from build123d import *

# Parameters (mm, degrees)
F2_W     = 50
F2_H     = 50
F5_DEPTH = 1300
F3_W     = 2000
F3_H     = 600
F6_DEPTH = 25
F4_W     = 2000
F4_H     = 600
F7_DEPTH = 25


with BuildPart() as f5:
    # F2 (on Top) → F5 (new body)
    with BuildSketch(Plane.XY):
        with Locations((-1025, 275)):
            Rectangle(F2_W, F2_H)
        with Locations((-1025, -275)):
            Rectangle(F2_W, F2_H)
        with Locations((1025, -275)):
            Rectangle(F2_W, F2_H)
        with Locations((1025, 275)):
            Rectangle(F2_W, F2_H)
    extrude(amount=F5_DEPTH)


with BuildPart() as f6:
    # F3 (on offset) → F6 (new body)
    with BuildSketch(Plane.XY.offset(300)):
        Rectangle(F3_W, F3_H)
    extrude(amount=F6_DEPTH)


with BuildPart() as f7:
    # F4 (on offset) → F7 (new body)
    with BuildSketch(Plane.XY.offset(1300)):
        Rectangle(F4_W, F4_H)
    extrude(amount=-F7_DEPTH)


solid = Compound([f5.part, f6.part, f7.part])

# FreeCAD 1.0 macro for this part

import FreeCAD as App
import Part
import Sketcher

V = App.Vector
Q = App.Units.Quantity


def add_polygon(sketch, points):
    """Adds a closed chain of lines whose ends are joined by coincident constraints."""
    first, n = sketch.GeometryCount, len(points)
    for a, b in zip(points, points[1:] + points[:1]):
        sketch.addGeometry(Part.LineSegment(App.Vector(*a, 0), App.Vector(*b, 0)), False)
    for i in range(n):
        sketch.addConstraint(Sketcher.Constraint("Coincident", first + i, 2, first + (i + 1) % n, 1))

doc = App.newDocument("Part")
body = doc.addObject("PartDesign::Body", "Body")
body.AllowCompound = True

sketch1 = doc.addObject("Sketcher::SketchObject", "Sketch")
body.addObject(sketch1)
sketch1.AttachmentSupport = (doc.XY_Plane, [""])
sketch1.MapMode = "FlatFace"
add_polygon(sketch1, [(-1050, 300), (-1050, 250), (-1000, 250), (-1000, 300)])
add_polygon(sketch1, [(-1050, -250), (-1050, -300), (-1000, -300), (-1000, -250)])
add_polygon(sketch1, [(1000, -250), (1000, -300), (1050, -300), (1050, -250)])
add_polygon(sketch1, [(1000, 300), (1000, 250), (1050, 250), (1050, 300)])
sketch1.addConstraint(Sketcher.Constraint("Vertical", 0))
sketch1.addConstraint(Sketcher.Constraint("Horizontal", 1))
sketch1.addConstraint(Sketcher.Constraint("Vertical", 2))
sketch1.addConstraint(Sketcher.Constraint("Horizontal", 3))
sketch1.addConstraint(Sketcher.Constraint("Vertical", 4))
sketch1.addConstraint(Sketcher.Constraint("Horizontal", 5))
sketch1.addConstraint(Sketcher.Constraint("Vertical", 6))
sketch1.addConstraint(Sketcher.Constraint("Horizontal", 7))
sketch1.addConstraint(Sketcher.Constraint("Vertical", 8))
sketch1.addConstraint(Sketcher.Constraint("Horizontal", 9))
sketch1.addConstraint(Sketcher.Constraint("Vertical", 10))
sketch1.addConstraint(Sketcher.Constraint("Horizontal", 11))
sketch1.addConstraint(Sketcher.Constraint("Vertical", 12))
sketch1.addConstraint(Sketcher.Constraint("Horizontal", 13))
sketch1.addConstraint(Sketcher.Constraint("Vertical", 14))
sketch1.addConstraint(Sketcher.Constraint("Horizontal", 15))
sketch1.addConstraint(Sketcher.Constraint("Symmetric", 2, 2, 8, 2, -1, 1))
sketch1.addConstraint(Sketcher.Constraint("Symmetric", 0, 2, 10, 2, -1, 1))
sketch1.addConstraint(Sketcher.Constraint("Symmetric", 6, 2, 12, 2, -1, 1))
sketch1.addConstraint(Sketcher.Constraint("Symmetric", 4, 2, 14, 2, -1, 1))
sketch1.addConstraint(Sketcher.Constraint("Symmetric", 5, 2, 8, 2, -2))
sketch1.addConstraint(Sketcher.Constraint("Symmetric", 7, 2, 10, 2, -2))
sketch1.addConstraint(Sketcher.Constraint("Equal", 15, 0))
sketch1.addConstraint(Sketcher.Constraint("DistanceX", 1, 1, 1, 2, Q("50 mm")))
sketch1.addConstraint(Sketcher.Constraint("DistanceX", 0, 2, -1, 1, Q("1050 mm")))
sketch1.addConstraint(Sketcher.Constraint("DistanceY", -1, 1, 0, 2, Q("250 mm")))
pad1 = doc.addObject("PartDesign::Pad", "Pad")
body.addObject(pad1)
pad1.Profile = sketch1
pad1.Length = 1300
body2 = doc.addObject("PartDesign::Body", "Body001")

sketch2 = doc.addObject("Sketcher::SketchObject", "Sketch001")
body2.addObject(sketch2)
sketch2.AttachmentSupport = (doc.getObject("XY_Plane001"), [""])
sketch2.MapMode = "FlatFace"
sketch2.AttachmentOffset = App.Placement(V(0, 0, 300), App.Rotation())
add_polygon(sketch2, [(-1000, 300), (-1000, -300), (1000, -300), (1000, 300)])
sketch2.addConstraint(Sketcher.Constraint("Vertical", 0))
sketch2.addConstraint(Sketcher.Constraint("Horizontal", 1))
sketch2.addConstraint(Sketcher.Constraint("Vertical", 2))
sketch2.addConstraint(Sketcher.Constraint("Horizontal", 3))
sketch2.addConstraint(Sketcher.Constraint("Symmetric", 0, 2, 2, 2, -1, 1))
sketch2.addConstraint(Sketcher.Constraint("DistanceX", 1, 1, 1, 2, Q("2000 mm")))
sketch2.addConstraint(Sketcher.Constraint("DistanceY", 0, 2, 0, 1, Q("600 mm")))
pad2 = doc.addObject("PartDesign::Pad", "Pad001")
body2.addObject(pad2)
pad2.Profile = sketch2
pad2.Length = 25
body3 = doc.addObject("PartDesign::Body", "Body002")

sketch3 = doc.addObject("Sketcher::SketchObject", "Sketch002")
body3.addObject(sketch3)
sketch3.AttachmentSupport = (doc.getObject("XY_Plane002"), [""])
sketch3.MapMode = "FlatFace"
sketch3.AttachmentOffset = App.Placement(V(0, 0, 1300), App.Rotation())
add_polygon(sketch3, [(-1000, 300), (-1000, -300), (1000, -300), (1000, 300)])
sketch3.addConstraint(Sketcher.Constraint("Vertical", 0))
sketch3.addConstraint(Sketcher.Constraint("Horizontal", 1))
sketch3.addConstraint(Sketcher.Constraint("Vertical", 2))
sketch3.addConstraint(Sketcher.Constraint("Horizontal", 3))
sketch3.addConstraint(Sketcher.Constraint("Symmetric", 0, 2, 2, 2, -1, 1))
sketch3.addConstraint(Sketcher.Constraint("DistanceX", 1, 1, 1, 2, Q("2000 mm")))
sketch3.addConstraint(Sketcher.Constraint("DistanceY", 0, 2, 0, 1, Q("600 mm")))
pad3 = doc.addObject("PartDesign::Pad", "Pad002")
body3.addObject(pad3)
pad3.Profile = sketch3
pad3.Length = 25
pad3.Reversed = True

doc.recompute()
